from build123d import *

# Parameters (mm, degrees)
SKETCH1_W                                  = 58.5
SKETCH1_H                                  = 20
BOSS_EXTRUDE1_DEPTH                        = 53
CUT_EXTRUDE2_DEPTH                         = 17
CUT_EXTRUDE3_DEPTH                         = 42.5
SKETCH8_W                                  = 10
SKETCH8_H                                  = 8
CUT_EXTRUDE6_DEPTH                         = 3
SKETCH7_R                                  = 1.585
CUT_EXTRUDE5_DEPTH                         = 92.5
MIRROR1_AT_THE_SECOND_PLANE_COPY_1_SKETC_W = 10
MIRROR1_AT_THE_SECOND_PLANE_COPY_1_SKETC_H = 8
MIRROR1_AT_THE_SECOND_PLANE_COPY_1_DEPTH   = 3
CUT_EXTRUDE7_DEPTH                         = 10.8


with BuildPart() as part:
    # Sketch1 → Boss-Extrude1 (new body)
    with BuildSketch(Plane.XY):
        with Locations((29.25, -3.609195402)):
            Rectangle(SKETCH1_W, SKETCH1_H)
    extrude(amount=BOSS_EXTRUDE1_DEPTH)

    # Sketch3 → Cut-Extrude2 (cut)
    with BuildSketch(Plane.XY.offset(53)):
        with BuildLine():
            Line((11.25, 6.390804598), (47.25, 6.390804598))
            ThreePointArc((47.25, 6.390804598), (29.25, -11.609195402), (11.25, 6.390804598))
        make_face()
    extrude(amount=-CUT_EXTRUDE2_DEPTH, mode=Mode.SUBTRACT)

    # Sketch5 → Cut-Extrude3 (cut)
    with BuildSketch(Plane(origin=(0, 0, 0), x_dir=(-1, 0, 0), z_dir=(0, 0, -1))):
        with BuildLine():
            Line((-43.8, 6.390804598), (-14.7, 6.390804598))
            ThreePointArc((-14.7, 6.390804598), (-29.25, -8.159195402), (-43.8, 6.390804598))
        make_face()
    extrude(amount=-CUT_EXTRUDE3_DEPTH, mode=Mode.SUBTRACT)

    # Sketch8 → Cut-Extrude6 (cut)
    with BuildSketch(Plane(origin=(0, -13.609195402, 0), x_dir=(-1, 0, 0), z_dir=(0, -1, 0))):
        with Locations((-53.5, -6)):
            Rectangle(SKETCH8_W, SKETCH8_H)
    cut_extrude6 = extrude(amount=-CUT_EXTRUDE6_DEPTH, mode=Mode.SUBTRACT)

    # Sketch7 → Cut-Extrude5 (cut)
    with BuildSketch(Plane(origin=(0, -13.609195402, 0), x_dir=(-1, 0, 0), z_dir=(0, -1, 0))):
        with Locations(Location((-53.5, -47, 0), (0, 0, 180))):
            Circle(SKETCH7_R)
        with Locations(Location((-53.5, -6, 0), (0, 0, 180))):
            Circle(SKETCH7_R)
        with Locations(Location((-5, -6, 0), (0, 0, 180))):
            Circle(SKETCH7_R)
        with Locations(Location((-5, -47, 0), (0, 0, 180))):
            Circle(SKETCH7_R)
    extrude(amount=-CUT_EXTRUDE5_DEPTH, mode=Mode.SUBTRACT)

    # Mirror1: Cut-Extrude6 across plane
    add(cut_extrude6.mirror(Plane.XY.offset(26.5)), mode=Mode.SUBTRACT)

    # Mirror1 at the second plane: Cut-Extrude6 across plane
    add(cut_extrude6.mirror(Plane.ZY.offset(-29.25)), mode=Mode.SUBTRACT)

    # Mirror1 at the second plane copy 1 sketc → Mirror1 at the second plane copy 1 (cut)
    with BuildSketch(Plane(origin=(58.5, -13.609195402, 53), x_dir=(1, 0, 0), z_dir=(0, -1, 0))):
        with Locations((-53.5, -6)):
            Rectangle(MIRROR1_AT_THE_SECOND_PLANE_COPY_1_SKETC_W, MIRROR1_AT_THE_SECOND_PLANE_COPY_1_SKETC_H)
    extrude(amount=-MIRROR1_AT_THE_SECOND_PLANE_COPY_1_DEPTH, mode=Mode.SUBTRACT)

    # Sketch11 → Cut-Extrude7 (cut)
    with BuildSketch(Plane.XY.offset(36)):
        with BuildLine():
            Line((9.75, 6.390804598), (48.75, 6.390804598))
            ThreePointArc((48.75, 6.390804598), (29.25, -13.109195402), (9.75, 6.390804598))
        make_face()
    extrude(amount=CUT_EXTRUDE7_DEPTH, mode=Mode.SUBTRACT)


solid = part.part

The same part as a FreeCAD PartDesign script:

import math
import FreeCAD as App
import Part
import Sketcher

doc = App.newDocument("Part")
params = doc.addObject("Spreadsheet::Sheet", "Params")
for row, (alias, value) in enumerate([
    ("sketch1_height", "20 mm"),
    ("sketch1_width", "58.5 mm"),
    ("pad1_length", "53 mm"),
    ("sketch2_radius", "18 mm"),
    ("pocket1_length", "17 mm"),
    ("sketch3_radius", "14.55 mm"),
    ("pocket2_length", "42.5 mm"),
    ("sketch4_width", "10 mm"),
    ("sketch4_height", "8 mm"),
    ("pocket3_length", "3 mm"),
    ("sketch5_diameter", "3.17 mm"),
    ("pocket4_length", "92.5 mm"),
    ("sketch6_width", "10 mm"),
    ("sketch6_height", "8 mm"),
    ("pocket5_length", "3 mm"),
    ("sketch7_radius", "19.5 mm"),
    ("pocket6_length", "10.8 mm"),
], start=1):
    params.set(f"A{row}", alias)
    params.set(f"B{row}", "=" + value)
    params.setAlias(f"B{row}", alias)

body = doc.addObject("PartDesign::Body", "Body")

sketch1 = body.newObject("Sketcher::SketchObject", "Sketch")
sketch1.AttachmentSupport = (doc.getObject("XY_Plane"), [""])
sketch1.MapMode = "FlatFace"
sketch1.addGeometry([
    Part.LineSegment(App.Vector(0, 6, 0), App.Vector(0, -14, 0)),
    Part.LineSegment(App.Vector(0, -14, 0), App.Vector(58, -14, 0)),
    Part.LineSegment(App.Vector(58, -14, 0), App.Vector(58, 6, 0)),
    Part.LineSegment(App.Vector(58, 6, 0), App.Vector(0, 6, 0)),
], False)
sketch1.addConstraint([
    Sketcher.Constraint("Coincident", 0, 2, 1, 1),
    Sketcher.Constraint("Coincident", 1, 2, 2, 1),
    Sketcher.Constraint("Coincident", 2, 2, 3, 1),
    Sketcher.Constraint("Coincident", 3, 2, 0, 1),
    Sketcher.Constraint("Vertical", 0),
    Sketcher.Constraint("Horizontal", 1),
    Sketcher.Constraint("Vertical", 2),
    Sketcher.Constraint("Horizontal", 3),
    Sketcher.Constraint("PointOnObject", 0, 2, -2),
    Sketcher.Constraint("DistanceY", 0, 2, 0, 1, 20.0),
    Sketcher.Constraint("DistanceX", 1, 1, 1, 2, 58.5),
    Sketcher.Constraint("DistanceY", 0, 2, -1, 1, 13.609195),
])
sketch1.setExpression("Constraints[9]", "Params.sketch1_height")
sketch1.setExpression("Constraints[10]", "Params.sketch1_width")
pad1 = body.newObject("PartDesign::Pad", "Pad")
pad1.Profile = sketch1
pad1.setExpression("Length", "Params.pad1_length")

sketch2 = body.newObject("Sketcher::SketchObject", "Sketch001")
sketch2.AttachmentSupport = (doc.getObject("XY_Plane"), [""])
sketch2.MapMode = "FlatFace"
sketch2.AttachmentOffset = App.Placement(App.Vector(0, 0, 53), App.Rotation())
sketch2.addGeometry([
    Part.LineSegment(App.Vector(47, 6, 0), App.Vector(11, 6, 0)),
    Part.ArcOfCircle(Part.Circle(App.Vector(29, 6, 0), App.Vector(0, 0, 1), 18), math.radians(180), math.radians(360)),
], False)
sketch2.addConstraint([
    Sketcher.Constraint("Coincident", 0, 1, 1, 2),
    Sketcher.Constraint("Coincident", 1, 1, 0, 2),
    Sketcher.Constraint("Horizontal", 0),
    Sketcher.Constraint("Horizontal", 1, 3, 0, 1),
    Sketcher.Constraint("Radius", 1, 18.0),
    Sketcher.Constraint("DistanceX", -1, 1, 1, 3, 29.25),
    Sketcher.Constraint("DistanceY", -1, 1, 1, 3, 6.390805),
])
sketch2.setExpression("Constraints[4]", "Params.sketch2_radius")
pocket1 = body.newObject("PartDesign::Pocket", "Pocket")
pocket1.Profile = sketch2
pocket1.setExpression("Length", "Params.pocket1_length")

sketch3 = body.newObject("Sketcher::SketchObject", "Sketch002")
sketch3.AttachmentSupport = (doc.getObject("XY_Plane"), [""])
sketch3.MapMode = "FlatFace"
sketch3.addGeometry([
    Part.LineSegment(App.Vector(15, 6, 0), App.Vector(44, 6, 0)),
    Part.ArcOfCircle(Part.Circle(App.Vector(29, 6, 0), App.Vector(0, 0, 1), 15), math.radians(180), math.radians(360)),
], False)
sketch3.addConstraint([
    Sketcher.Constraint("Coincident", 0, 1, 1, 1),
    Sketcher.Constraint("Coincident", 1, 2, 0, 2),
    Sketcher.Constraint("Horizontal", 0),
    Sketcher.Constraint("Horizontal", 1, 3, 0, 1),
    Sketcher.Constraint("Radius", 1, 14.55),
    Sketcher.Constraint("DistanceX", -1, 1, 0, 1, 14.7),
    Sketcher.Constraint("DistanceY", -1, 1, 1, 3, 6.390805),
])
sketch3.setExpression("Constraints[4]", "Params.sketch3_radius")
pocket2 = body.newObject("PartDesign::Pocket", "Pocket001")
pocket2.Profile = sketch3
pocket2.setExpression("Length", "Params.pocket2_length")
pocket2.Reversed = True

sketch4 = body.newObject("Sketcher::SketchObject", "Sketch003")
sketch4.AttachmentSupport = (doc.getObject("XZ_Plane"), [""])
sketch4.MapMode = "FlatFace"
sketch4.AttachmentOffset = App.Placement(App.Vector(0, 0, 13.609195), App.Rotation())
sketch4.addGeometry([
    Part.LineSegment(App.Vector(58, 2, 0), App.Vector(58, 10, 0)),
    Part.LineSegment(App.Vector(58, 10, 0), App.Vector(48, 10, 0)),
    Part.LineSegment(App.Vector(48, 10, 0), App.Vector(48, 2, 0)),
    Part.LineSegment(App.Vector(48, 2, 0), App.Vector(58, 2, 0)),
], False)
sketch4.addConstraint([
    Sketcher.Constraint("Coincident", 0, 2, 1, 1),
    Sketcher.Constraint("Coincident", 1, 2, 2, 1),
    Sketcher.Constraint("Coincident", 2, 2, 3, 1),
    Sketcher.Constraint("Coincident", 3, 2, 0, 1),
    Sketcher.Constraint("Vertical", 0),
    Sketcher.Constraint("Horizontal", 1),
    Sketcher.Constraint("Vertical", 2),
    Sketcher.Constraint("Horizontal", 3),
    Sketcher.Constraint("DistanceX", 1, 2, 1, 1, 10.0),
    Sketcher.Constraint("DistanceY", 0, 1, 0, 2, 8.0),
    Sketcher.Constraint("DistanceY", -1, 1, 0, 2, 10.0),
    Sketcher.Constraint("DistanceX", -1, 1, 0, 2, 58.5),
])
sketch4.setExpression("Constraints[8]", "Params.sketch4_width")
sketch4.setExpression("Constraints[9]", "Params.sketch4_height")
pocket3 = body.newObject("PartDesign::Pocket", "Pocket002")
pocket3.Profile = sketch4
pocket3.setExpression("Length", "Params.pocket3_length")

sketch5 = body.newObject("Sketcher::SketchObject", "Sketch004")
sketch5.AttachmentSupport = (doc.getObject("XZ_Plane"), [""])
sketch5.MapMode = "FlatFace"
sketch5.AttachmentOffset = App.Placement(App.Vector(0, 0, 13.609195), App.Rotation())
sketch5.addGeometry([
    Part.Circle(App.Vector(53.5, 47, 0), App.Vector(0, 0, 1), 1.6),
    Part.Circle(App.Vector(53.5, 6, 0), App.Vector(0, 0, 1), 1.6),
    Part.Circle(App.Vector(5, 6, 0), App.Vector(0, 0, 1), 1.6),
    Part.Circle(App.Vector(5, 47, 0), App.Vector(0, 0, 1), 1.6),
], False)
sketch5.addConstraint([
    Sketcher.Constraint("Equal", 0, 1),
    Sketcher.Constraint("Equal", 1, 2),
    Sketcher.Constraint("Equal", 2, 3),
    Sketcher.Constraint("Horizontal", 1, 3, 2, 3),
    Sketcher.Constraint("Horizontal", 0, 3, 3, 3),
    Sketcher.Constraint("Vertical", 0, 3, 1, 3),
    Sketcher.Constraint("Vertical", 2, 3, 3, 3),
    Sketcher.Constraint("Diameter", 0, 3.17),
    Sketcher.Constraint("DistanceY", -1, 1, 0, 3, 47.0),
    Sketcher.Constraint("DistanceY", -1, 1, 1, 3, 6.0),
    Sketcher.Constraint("DistanceX", -1, 1, 2, 3, 5.0),
    Sketcher.Constraint("DistanceX", -1, 1, 0, 3, 53.5),
])
sketch5.setExpression("Constraints[7]", "Params.sketch5_diameter")
pocket4 = body.newObject("PartDesign::Pocket", "Pocket003")
pocket4.Profile = sketch5
pocket4.setExpression("Length", "Params.pocket4_length")
doc.recompute()

datumplane = body.newObject("PartDesign::Plane", "DatumPlane")
datumplane.AttachmentSupport = (doc.getObject("XY_Plane"), [""])
datumplane.MapMode = "FlatFace"
datumplane.AttachmentOffset = App.Placement(App.Vector(0, 0, 26.5), App.Rotation())
mirrored = body.newObject("PartDesign::Mirrored", "Mirrored")
mirrored.Originals = [pocket3]
mirrored.MirrorPlane = (datumplane, [""])
body.Tip = mirrored
doc.recompute()

datumplane2 = body.newObject("PartDesign::Plane", "DatumPlane001")
datumplane2.AttachmentSupport = (doc.getObject("YZ_Plane"), [""])
datumplane2.MapMode = "FlatFace"
datumplane2.AttachmentOffset = App.Placement(App.Vector(0, 0, 29.25), App.Rotation())
mirrored2 = body.newObject("PartDesign::Mirrored", "Mirrored001")
mirrored2.Originals = [pocket3]
mirrored2.MirrorPlane = (datumplane2, [""])
body.Tip = mirrored2

sketch6 = body.newObject("Sketcher::SketchObject", "Sketch005")
sketch6.AttachmentSupport = (doc.getObject("XZ_Plane"), [""])
sketch6.MapMode = "FlatFace"
sketch6.AttachmentOffset = App.Placement(App.Vector(0, 0, 13.609195), App.Rotation())
sketch6.addGeometry([
    Part.LineSegment(App.Vector(0, 51, 0), App.Vector(0, 43, 0)),
    Part.LineSegment(App.Vector(0, 43, 0), App.Vector(10, 43, 0)),
    Part.LineSegment(App.Vector(10, 43, 0), App.Vector(10, 51, 0)),
    Part.LineSegment(App.Vector(10, 51, 0), App.Vector(0, 51, 0)),
], False)
sketch6.addConstraint([
    Sketcher.Constraint("Coincident", 0, 2, 1, 1),
    Sketcher.Constraint("Coincident", 1, 2, 2, 1),
    Sketcher.Constraint("Coincident", 2, 2, 3, 1),
    Sketcher.Constraint("Coincident", 3, 2, 0, 1),
    Sketcher.Constraint("Vertical", 0),
    Sketcher.Constraint("Horizontal", 1),
    Sketcher.Constraint("Vertical", 2),
    Sketcher.Constraint("Horizontal", 3),
    Sketcher.Constraint("PointOnObject", 0, 2, -2),
    Sketcher.Constraint("DistanceX", 1, 1, 1, 2, 10.0),
    Sketcher.Constraint("DistanceY", 0, 2, 0, 1, 8.0),
    Sketcher.Constraint("DistanceY", -1, 1, 0, 2, 43.0),
])
sketch6.setExpression("Constraints[9]", "Params.sketch6_width")
sketch6.setExpression("Constraints[10]", "Params.sketch6_height")
pocket5 = body.newObject("PartDesign::Pocket", "Pocket004")
pocket5.Profile = sketch6
pocket5.setExpression("Length", "Params.pocket5_length")

sketch7 = body.newObject("Sketcher::SketchObject", "Sketch006")
sketch7.AttachmentSupport = (doc.getObject("XY_Plane"), [""])
sketch7.MapMode = "FlatFace"
sketch7.AttachmentOffset = App.Placement(App.Vector(0, 0, 36), App.Rotation())
sketch7.addGeometry([
    Part.LineSegment(App.Vector(49, 6, 0), App.Vector(10, 6, 0)),
    Part.ArcOfCircle(Part.Circle(App.Vector(29, 6, 0), App.Vector(0, 0, 1), 20), math.radians(180), math.radians(360)),
], False)
sketch7.addConstraint([
    Sketcher.Constraint("Coincident", 0, 1, 1, 2),
    Sketcher.Constraint("Coincident", 1, 1, 0, 2),
    Sketcher.Constraint("Horizontal", 0),
    Sketcher.Constraint("Horizontal", 1, 3, 0, 1),
    Sketcher.Constraint("Radius", 1, 19.5),
    Sketcher.Constraint("DistanceX", -1, 1, 1, 3, 29.25),
    Sketcher.Constraint("DistanceY", -1, 1, 1, 3, 6.390805),
])
sketch7.setExpression("Constraints[4]", "Params.sketch7_radius")
pocket6 = body.newObject("PartDesign::Pocket", "Pocket005")
pocket6.Profile = sketch7
pocket6.setExpression("Length", "Params.pocket6_length")
pocket6.Reversed = True

doc.recompute()
